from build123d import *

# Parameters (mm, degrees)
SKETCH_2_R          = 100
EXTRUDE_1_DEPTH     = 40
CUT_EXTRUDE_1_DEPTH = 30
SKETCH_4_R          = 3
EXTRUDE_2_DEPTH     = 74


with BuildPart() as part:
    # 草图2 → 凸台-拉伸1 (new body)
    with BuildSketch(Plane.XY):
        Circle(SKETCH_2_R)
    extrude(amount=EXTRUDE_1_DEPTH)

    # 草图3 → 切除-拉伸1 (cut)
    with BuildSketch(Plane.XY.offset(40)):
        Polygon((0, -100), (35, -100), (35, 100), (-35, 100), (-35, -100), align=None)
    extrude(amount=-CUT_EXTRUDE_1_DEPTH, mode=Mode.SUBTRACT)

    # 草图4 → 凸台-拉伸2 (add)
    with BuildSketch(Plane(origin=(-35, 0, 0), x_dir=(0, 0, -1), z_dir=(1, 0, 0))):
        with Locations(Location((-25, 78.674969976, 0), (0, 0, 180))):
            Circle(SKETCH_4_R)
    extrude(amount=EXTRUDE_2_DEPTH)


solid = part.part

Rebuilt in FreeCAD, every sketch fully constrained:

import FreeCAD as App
import Part
import Sketcher

V = App.Vector
Q = App.Units.Quantity

doc = App.newDocument("Part")
body = doc.addObject("PartDesign::Body", "Body")

# Sketch on XY plane
sketch1 = body.newObject("Sketcher::SketchObject", "Sketch")
sketch1.AttachmentSupport = (doc.getObject("XY_Plane"), [""])
sketch1.MapMode = "FlatFace"
sketch1.addGeometry(Part.Circle(V(0, 0, 0), V(0, 0, 1), 100), False)
sketch1.addConstraint(Sketcher.Constraint("Coincident", 0, 3, -1, 1))
sketch1.addConstraint(Sketcher.Constraint("Diameter", 0, Q("200 mm")))
pad1 = body.newObject("PartDesign::Pad", "Pad")
pad1.Profile = sketch1
pad1.Length = 40

# Sketch on XY plane
sketch2 = body.newObject("Sketcher::SketchObject", "Sketch001")
sketch2.AttachmentSupport = (doc.getObject("XY_Plane"), [""])
sketch2.MapMode = "FlatFace"
sketch2.AttachmentOffset = App.Placement(V(0, 0, 40), App.Rotation())
sketch2.addGeometry(Part.LineSegment(V(35, -100, 0), V(35, 100, 0)), False)
sketch2.addGeometry(Part.LineSegment(V(35, 100, 0), V(-35, 100, 0)), False)
sketch2.addGeometry(Part.LineSegment(V(-35, 100, 0), V(-35, -100, 0)), False)
sketch2.addGeometry(Part.LineSegment(V(-35, -100, 0), V(35, -100, 0)), False)
sketch2.addConstraint(Sketcher.Constraint("Coincident", 0, 2, 1, 1))
sketch2.addConstraint(Sketcher.Constraint("Coincident", 1, 2, 2, 1))
sketch2.addConstraint(Sketcher.Constraint("Coincident", 2, 2, 3, 1))
sketch2.addConstraint(Sketcher.Constraint("Coincident", 3, 2, 0, 1))
sketch2.addConstraint(Sketcher.Constraint("Vertical", 0))
sketch2.addConstraint(Sketcher.Constraint("Horizontal", 1))
sketch2.addConstraint(Sketcher.Constraint("Vertical", 2))
sketch2.addConstraint(Sketcher.Constraint("Horizontal", 3))
sketch2.addConstraint(Sketcher.Constraint("Symmetric", 0, 2, 2, 2, -1, 1))
sketch2.addConstraint(Sketcher.Constraint("DistanceX", 1, 2, 1, 1, Q("70 mm")))
sketch2.addConstraint(Sketcher.Constraint("DistanceY", 0, 1, 0, 2, Q("200 mm")))
pocket1 = body.newObject("PartDesign::Pocket", "Pocket")
pocket1.Profile = sketch2
pocket1.Length = 30

# Sketch on YZ plane
sketch3 = body.newObject("Sketcher::SketchObject", "Sketch002")
sketch3.AttachmentSupport = (doc.getObject("YZ_Plane"), [""])
sketch3.MapMode = "FlatFace"
sketch3.AttachmentOffset = App.Placement(V(0, 0, -35), App.Rotation())
sketch3.addGeometry(Part.Circle(V(78.7, 25, 0), V(0, 0, 1), 3), False)
sketch3.addConstraint(Sketcher.Constraint("Diameter", 0, Q("6 mm")))
sketch3.addConstraint(Sketcher.Constraint("DistanceY", -1, 1, 0, 3, Q("25 mm")))
sketch3.addConstraint(Sketcher.Constraint("DistanceX", -1, 1, 0, 3, Q("78.67497 mm")))
pad2 = body.newObject("PartDesign::Pad", "Pad001")
pad2.Profile = sketch3
pad2.Length = 74

doc.recompute()
